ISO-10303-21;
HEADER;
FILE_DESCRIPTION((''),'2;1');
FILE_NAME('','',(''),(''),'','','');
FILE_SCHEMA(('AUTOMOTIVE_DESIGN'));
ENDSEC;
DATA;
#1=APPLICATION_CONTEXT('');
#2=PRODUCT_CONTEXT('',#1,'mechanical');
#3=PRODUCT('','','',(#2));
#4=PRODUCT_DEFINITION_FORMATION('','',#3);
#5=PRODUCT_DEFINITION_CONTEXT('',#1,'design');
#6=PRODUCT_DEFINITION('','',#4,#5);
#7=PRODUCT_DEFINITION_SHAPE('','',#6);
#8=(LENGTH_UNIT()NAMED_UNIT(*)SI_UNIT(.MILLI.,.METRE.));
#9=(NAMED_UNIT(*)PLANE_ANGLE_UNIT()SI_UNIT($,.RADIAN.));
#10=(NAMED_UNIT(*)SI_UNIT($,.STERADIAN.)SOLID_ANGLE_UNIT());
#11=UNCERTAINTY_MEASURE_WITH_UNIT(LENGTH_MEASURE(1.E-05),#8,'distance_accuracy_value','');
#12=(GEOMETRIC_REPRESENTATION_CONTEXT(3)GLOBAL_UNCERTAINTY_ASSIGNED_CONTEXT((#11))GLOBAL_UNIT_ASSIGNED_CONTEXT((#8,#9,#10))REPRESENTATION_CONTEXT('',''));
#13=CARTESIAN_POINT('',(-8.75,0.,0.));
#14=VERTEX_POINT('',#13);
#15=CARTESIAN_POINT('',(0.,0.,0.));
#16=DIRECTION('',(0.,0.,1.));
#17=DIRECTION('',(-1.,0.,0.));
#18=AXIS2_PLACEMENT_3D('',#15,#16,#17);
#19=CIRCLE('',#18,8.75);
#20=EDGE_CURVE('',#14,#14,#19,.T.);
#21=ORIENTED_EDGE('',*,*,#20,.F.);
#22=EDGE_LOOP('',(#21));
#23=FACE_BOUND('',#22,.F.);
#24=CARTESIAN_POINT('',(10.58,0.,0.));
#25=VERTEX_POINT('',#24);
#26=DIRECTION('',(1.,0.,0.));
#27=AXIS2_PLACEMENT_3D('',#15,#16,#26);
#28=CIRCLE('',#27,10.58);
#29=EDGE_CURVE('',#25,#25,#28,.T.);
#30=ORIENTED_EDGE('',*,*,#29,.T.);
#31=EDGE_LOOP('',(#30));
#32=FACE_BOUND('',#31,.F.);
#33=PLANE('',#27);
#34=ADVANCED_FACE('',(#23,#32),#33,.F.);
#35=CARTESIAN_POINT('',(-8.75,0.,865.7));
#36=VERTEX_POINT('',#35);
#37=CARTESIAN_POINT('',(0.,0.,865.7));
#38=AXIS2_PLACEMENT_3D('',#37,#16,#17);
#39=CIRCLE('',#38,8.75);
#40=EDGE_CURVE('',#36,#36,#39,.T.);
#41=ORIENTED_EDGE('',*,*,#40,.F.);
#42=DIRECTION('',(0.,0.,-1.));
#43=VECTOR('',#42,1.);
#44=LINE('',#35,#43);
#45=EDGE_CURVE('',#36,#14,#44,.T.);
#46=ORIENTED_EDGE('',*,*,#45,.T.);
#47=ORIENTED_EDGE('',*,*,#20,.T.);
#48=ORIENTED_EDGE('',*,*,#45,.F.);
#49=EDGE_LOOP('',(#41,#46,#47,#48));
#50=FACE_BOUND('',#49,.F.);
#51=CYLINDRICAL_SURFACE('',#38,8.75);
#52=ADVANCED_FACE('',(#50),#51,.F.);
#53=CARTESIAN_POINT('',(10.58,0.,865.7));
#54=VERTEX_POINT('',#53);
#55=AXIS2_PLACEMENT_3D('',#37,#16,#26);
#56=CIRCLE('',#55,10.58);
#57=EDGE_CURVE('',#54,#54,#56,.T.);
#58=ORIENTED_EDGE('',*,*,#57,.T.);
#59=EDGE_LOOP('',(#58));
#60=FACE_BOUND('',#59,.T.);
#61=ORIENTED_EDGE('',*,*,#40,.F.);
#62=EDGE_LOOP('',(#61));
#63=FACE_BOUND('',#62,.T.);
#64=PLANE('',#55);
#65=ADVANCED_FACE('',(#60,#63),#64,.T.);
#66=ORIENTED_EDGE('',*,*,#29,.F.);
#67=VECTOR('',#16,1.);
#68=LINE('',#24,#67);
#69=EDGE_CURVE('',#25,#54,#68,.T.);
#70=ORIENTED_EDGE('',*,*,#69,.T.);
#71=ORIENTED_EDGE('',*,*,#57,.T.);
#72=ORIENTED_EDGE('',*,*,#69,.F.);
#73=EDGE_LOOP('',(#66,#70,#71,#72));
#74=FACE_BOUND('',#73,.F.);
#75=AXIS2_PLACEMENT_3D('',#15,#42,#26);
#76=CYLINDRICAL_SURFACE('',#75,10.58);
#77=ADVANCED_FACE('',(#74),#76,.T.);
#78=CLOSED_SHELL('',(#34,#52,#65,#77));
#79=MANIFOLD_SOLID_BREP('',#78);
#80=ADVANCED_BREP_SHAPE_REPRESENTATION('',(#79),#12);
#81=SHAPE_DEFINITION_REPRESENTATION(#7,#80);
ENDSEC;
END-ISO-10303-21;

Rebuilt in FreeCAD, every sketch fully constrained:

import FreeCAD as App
import Part
import Sketcher

doc = App.newDocument("Part")
params = doc.addObject("Spreadsheet::Sheet", "Params")
for row, (alias, value) in enumerate([
    ("sketch1_diameter", "21.16 mm"),
    ("pad1_length", "865.7 mm"),
    ("sketch2_diameter", "17.5 mm"),
    ("pocket1_length", "870 mm"),
], start=1):
    params.set(f"A{row}", alias)
    params.set(f"B{row}", "=" + value)
    params.setAlias(f"B{row}", alias)

body = doc.addObject("PartDesign::Body", "Body")

# Sketch on XY plane
sketch1 = doc.addObject("Sketcher::SketchObject", "Sketch")
body.addObject(sketch1)
sketch1.AttachmentSupport = (doc.XY_Plane, [""])
sketch1.MapMode = "FlatFace"
sketch1.addGeometry(Part.Circle(App.Vector(0, 0, 0), App.Vector(0, 0, 1), 10.58), False)
sketch1.addConstraint([
    Sketcher.Constraint("Coincident", 0, 3, -1, 1),
    Sketcher.Constraint("Diameter", 0, 21.16),
])
sketch1.setExpression("Constraints[1]", "Params.sketch1_diameter")
pad1 = doc.addObject("PartDesign::Pad", "Pad")
body.addObject(pad1)
pad1.Profile = sketch1
pad1.setExpression("Length", "Params.pad1_length")

# Sketch on XY plane
sketch2 = doc.addObject("Sketcher::SketchObject", "Sketch001")
body.addObject(sketch2)
sketch2.AttachmentSupport = (doc.XY_Plane, [""])
sketch2.MapMode = "FlatFace"
sketch2.AttachmentOffset = App.Placement(App.Vector(0, 0, 865.7), App.Rotation())
sketch2.addGeometry(Part.Circle(App.Vector(0, 0, 0), App.Vector(0, 0, 1), 8.75), False)
sketch2.addConstraint([
    Sketcher.Constraint("Coincident", 0, 3, -1, 1),
    Sketcher.Constraint("Diameter", 0, 17.5),
])
sketch2.setExpression("Constraints[1]", "Params.sketch2_diameter")
pocket1 = doc.addObject("PartDesign::Pocket", "Pocket")
body.addObject(pocket1)
pocket1.Profile = sketch2
pocket1.setExpression("Length", "Params.pocket1_length")

doc.recompute()
